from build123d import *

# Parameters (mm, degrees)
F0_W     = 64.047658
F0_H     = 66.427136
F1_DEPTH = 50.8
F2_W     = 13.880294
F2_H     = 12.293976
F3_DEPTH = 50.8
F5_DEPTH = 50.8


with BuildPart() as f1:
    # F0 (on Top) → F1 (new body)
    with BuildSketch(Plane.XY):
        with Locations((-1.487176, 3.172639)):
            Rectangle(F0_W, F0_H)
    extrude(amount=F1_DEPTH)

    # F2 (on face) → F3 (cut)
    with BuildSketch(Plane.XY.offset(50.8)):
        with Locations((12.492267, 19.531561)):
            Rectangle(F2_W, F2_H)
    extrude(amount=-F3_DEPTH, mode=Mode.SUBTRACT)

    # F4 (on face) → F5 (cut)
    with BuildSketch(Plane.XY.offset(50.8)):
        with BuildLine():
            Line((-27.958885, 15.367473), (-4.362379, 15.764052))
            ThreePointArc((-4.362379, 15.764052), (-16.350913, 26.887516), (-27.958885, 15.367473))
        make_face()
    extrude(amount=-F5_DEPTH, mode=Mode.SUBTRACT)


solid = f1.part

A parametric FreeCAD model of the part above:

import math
import FreeCAD as App
import Part
import Sketcher
Q = App.Units.Quantity


def add_polygon(sketch, points):
    """Adds a closed chain of lines whose ends are joined by coincident constraints."""
    first, n = sketch.GeometryCount, len(points)
    for a, b in zip(points, points[1:] + points[:1]):
        sketch.addGeometry(Part.LineSegment(App.Vector(*a, 0), App.Vector(*b, 0)), False)
    for i in range(n):
        sketch.addConstraint(Sketcher.Constraint("Coincident", first + i, 2, first + (i + 1) % n, 1))

doc = App.newDocument("Part")
body = doc.addObject("PartDesign::Body", "Body")

sketch1 = body.newObject("Sketcher::SketchObject", "Sketch")
sketch1.AttachmentSupport = (doc.getObject("XY_Plane"), [""])
sketch1.MapMode = "FlatFace"
add_polygon(sketch1, [(-34, 36), (-34, -30), (31, -30), (31, 36)])
sketch1.addConstraint([
    Sketcher.Constraint("Vertical", 0),
    Sketcher.Constraint("Horizontal", 1),
    Sketcher.Constraint("Vertical", 2),
    Sketcher.Constraint("Horizontal", 3),
    Sketcher.Constraint("DistanceX", 1, 1, 1, 2, Q("64.047658 mm")),
    Sketcher.Constraint("DistanceY", 0, 2, 0, 1, Q("66.427136 mm")),
    Sketcher.Constraint("DistanceY", 0, 2, -1, 1, Q("30.040929 mm")),
    Sketcher.Constraint("DistanceX", 0, 2, -1, 1, Q("33.511005 mm")),
])
pad1 = body.newObject("PartDesign::Pad", "Pad")
pad1.Profile = sketch1
pad1.Length = Q("2 in")

sketch2 = body.newObject("Sketcher::SketchObject", "Sketch001")
sketch2.AttachmentSupport = (doc.getObject("XY_Plane"), [""])
sketch2.MapMode = "FlatFace"
sketch2.AttachmentOffset = App.Placement(App.Vector(0, 0, 2 * 25.4), App.Rotation())
add_polygon(sketch2, [(6, 26), (6, 13), (19, 13), (19, 26)])
sketch2.addConstraint([
    Sketcher.Constraint("Vertical", 0),
    Sketcher.Constraint("Horizontal", 1),
    Sketcher.Constraint("Vertical", 2),
    Sketcher.Constraint("Horizontal", 3),
    Sketcher.Constraint("DistanceX", 1, 1, 1, 2, Q("13.880294 mm")),
    Sketcher.Constraint("DistanceY", 0, 2, 0, 1, Q("12.293976 mm")),
    Sketcher.Constraint("DistanceX", -1, 1, 0, 2, Q("5.55212 mm")),
    Sketcher.Constraint("DistanceY", -1, 1, 2, 2, Q("25.678549 mm")),
])
pocket1 = body.newObject("PartDesign::Pocket", "Pocket")
pocket1.Profile = sketch2
pocket1.Length = Q("2 in")

sketch3 = body.newObject("Sketcher::SketchObject", "Sketch002")
sketch3.AttachmentSupport = (doc.getObject("XY_Plane"), [""])
sketch3.MapMode = "FlatFace"
sketch3.AttachmentOffset = App.Placement(App.Vector(0, 0, 2 * 25.4), App.Rotation())
sketch3.addGeometry([
    Part.LineSegment(App.Vector(-28, 15, 0), App.Vector(-4, 16, 0)),
    Part.ArcOfCircle(Part.Circle(App.Vector(-16, 15, 0), App.Vector(0, 0, 1), 12), math.radians(3), math.radians(179)),
], False)
sketch3.addConstraint([
    Sketcher.Constraint("Coincident", 0, 1, 1, 2),
    Sketcher.Constraint("Coincident", 1, 1, 0, 2),
    Sketcher.Constraint("Radius", 1, Q("11.809948 mm")),
    Sketcher.Constraint("Distance", 0, Q("23.599838 mm")),
    Sketcher.Constraint("DistanceX", 1, 1, -1, 1, Q("4.362379 mm")),
    Sketcher.Constraint("DistanceX", 0, 1, 1, 3, Q("11.80643 mm")),
    Sketcher.Constraint("DistanceY", -1, 1, 1, 3, Q("15.079236 mm")),
])
pocket2 = body.newObject("PartDesign::Pocket", "Pocket001")
pocket2.Profile = sketch3
pocket2.Length = Q("2 in")

doc.recompute()
